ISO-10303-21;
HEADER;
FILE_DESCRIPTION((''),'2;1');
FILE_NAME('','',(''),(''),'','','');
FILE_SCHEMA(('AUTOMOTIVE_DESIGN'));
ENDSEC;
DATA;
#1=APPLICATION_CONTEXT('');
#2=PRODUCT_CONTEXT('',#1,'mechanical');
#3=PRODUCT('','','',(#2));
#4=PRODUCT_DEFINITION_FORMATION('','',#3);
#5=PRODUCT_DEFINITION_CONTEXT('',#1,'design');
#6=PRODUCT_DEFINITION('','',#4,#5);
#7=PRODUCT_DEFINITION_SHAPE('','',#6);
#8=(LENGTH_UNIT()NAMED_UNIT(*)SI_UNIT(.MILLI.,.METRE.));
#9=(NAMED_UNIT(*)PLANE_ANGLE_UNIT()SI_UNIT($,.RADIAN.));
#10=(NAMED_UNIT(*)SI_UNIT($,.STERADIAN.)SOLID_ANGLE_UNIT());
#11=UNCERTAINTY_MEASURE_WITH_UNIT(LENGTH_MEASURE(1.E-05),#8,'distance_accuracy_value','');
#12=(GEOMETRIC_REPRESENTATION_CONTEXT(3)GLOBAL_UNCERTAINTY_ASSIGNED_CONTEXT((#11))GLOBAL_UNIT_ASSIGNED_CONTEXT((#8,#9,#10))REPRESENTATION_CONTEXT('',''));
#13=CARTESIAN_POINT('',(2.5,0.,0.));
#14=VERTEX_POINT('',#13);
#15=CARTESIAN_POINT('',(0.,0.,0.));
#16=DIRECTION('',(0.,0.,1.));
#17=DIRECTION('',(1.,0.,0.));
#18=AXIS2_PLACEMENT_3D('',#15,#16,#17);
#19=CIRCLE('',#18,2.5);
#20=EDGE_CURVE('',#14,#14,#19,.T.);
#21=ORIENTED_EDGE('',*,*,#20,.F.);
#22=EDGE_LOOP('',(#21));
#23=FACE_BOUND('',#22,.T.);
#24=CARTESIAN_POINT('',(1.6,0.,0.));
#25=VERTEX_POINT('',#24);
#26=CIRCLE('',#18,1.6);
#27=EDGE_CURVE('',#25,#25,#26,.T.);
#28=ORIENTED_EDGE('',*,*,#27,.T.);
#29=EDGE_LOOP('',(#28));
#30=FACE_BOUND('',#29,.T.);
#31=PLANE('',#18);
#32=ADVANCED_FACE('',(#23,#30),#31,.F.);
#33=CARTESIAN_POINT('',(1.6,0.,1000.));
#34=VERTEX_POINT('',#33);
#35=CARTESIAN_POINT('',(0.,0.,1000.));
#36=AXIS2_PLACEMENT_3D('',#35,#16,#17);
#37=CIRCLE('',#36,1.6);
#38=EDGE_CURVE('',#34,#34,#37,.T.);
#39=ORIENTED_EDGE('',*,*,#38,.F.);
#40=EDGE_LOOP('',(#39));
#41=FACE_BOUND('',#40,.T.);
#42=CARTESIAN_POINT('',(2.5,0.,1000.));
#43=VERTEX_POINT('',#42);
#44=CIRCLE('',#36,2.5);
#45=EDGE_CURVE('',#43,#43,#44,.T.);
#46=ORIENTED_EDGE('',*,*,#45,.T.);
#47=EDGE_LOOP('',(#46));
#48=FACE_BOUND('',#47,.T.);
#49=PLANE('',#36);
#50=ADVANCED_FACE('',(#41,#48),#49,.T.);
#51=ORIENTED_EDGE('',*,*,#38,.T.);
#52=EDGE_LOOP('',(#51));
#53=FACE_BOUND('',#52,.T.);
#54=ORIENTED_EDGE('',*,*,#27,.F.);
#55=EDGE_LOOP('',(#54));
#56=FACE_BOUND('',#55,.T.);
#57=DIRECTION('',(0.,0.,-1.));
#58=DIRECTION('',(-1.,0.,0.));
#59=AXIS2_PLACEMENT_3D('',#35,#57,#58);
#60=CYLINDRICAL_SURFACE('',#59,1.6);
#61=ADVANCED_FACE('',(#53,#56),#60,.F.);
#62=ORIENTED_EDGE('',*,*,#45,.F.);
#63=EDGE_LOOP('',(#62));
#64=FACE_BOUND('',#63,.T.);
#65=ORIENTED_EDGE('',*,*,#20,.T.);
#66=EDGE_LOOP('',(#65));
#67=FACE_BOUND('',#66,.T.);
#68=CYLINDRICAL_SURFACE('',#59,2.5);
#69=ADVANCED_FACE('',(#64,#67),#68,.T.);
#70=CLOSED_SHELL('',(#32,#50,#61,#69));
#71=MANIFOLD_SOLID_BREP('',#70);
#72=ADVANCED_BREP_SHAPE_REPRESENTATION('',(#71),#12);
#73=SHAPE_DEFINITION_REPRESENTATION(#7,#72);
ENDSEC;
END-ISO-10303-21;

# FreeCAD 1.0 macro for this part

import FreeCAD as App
import Part
import Sketcher

doc = App.newDocument("Part")
params = doc.addObject("Spreadsheet::Sheet", "Params")
for row, (alias, value) in enumerate([
    ("sketch1_diameter", "5 mm"),
    ("sketch1_diameter2", "3.2 mm"),
    ("pad1_length", "1000 mm"),
], start=1):
    params.set(f"A{row}", alias)
    params.set(f"B{row}", "=" + value)
    params.setAlias(f"B{row}", alias)

body = doc.addObject("PartDesign::Body", "Body")

# Sketch on XY plane
sketch1 = body.newObject("Sketcher::SketchObject", "Sketch")
sketch1.AttachmentSupport = (doc.getObject("XY_Plane"), [""])
sketch1.MapMode = "FlatFace"
sketch1.addGeometry([
    Part.Circle(App.Vector(0, 0, 0), App.Vector(0, 0, 1), 2.5),
    Part.Circle(App.Vector(0, 0, 0), App.Vector(0, 0, 1), 1.6),
], False)
sketch1.addConstraint([
    Sketcher.Constraint("Coincident", 0, 3, -1, 1),
    Sketcher.Constraint("Coincident", 1, 3, -1, 1),
    Sketcher.Constraint("Diameter", 0, 5.0),
    Sketcher.Constraint("Diameter", 1, 3.2),
])
sketch1.setExpression("Constraints[2]", "Params.sketch1_diameter")
sketch1.setExpression("Constraints[3]", "Params.sketch1_diameter2")
pad1 = body.newObject("PartDesign::Pad", "Pad")
pad1.Profile = sketch1
pad1.setExpression("Length", "Params.pad1_length")

doc.recompute()
